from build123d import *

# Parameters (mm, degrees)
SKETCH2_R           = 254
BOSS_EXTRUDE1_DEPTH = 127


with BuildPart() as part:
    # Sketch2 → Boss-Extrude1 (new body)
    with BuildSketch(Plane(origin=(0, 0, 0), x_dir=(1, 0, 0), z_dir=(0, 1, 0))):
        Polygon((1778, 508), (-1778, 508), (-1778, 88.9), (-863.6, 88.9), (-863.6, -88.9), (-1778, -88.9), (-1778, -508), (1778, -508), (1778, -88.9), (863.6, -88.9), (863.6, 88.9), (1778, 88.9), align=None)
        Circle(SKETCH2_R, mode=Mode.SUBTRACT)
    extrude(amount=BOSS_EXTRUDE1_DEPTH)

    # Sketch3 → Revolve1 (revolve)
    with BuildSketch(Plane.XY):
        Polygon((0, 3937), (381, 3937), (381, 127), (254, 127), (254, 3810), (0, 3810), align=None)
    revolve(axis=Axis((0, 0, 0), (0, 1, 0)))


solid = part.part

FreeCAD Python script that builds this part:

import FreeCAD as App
import Part
import Sketcher
from FreeCAD import Vector
Q = App.Units.Quantity


def add_polygon(sketch, points):
    """Adds a closed chain of lines whose ends are joined by coincident constraints."""
    first, n = sketch.GeometryCount, len(points)
    for a, b in zip(points, points[1:] + points[:1]):
        sketch.addGeometry(Part.LineSegment(App.Vector(*a, 0), App.Vector(*b, 0)), False)
    for i in range(n):
        sketch.addConstraint(Sketcher.Constraint("Coincident", first + i, 2, first + (i + 1) % n, 1))

doc = App.newDocument("Part")
body = doc.addObject("PartDesign::Body", "Body")

# Sketch on XZ plane
sketch1 = body.newObject("Sketcher::SketchObject", "Sketch")
sketch1.AttachmentSupport = (doc.getObject("XZ_Plane"), [""])
sketch1.MapMode = "FlatFace"
add_polygon(sketch1, [(1778, -508), (-1778, -508), (-1778, -88.9), (-863.6, -88.9), (-863.6, 88.9), (-1778, 88.9), (-1778, 508), (1778, 508), (1778, 88.9), (863.6, 88.9), (863.6, -88.9), (1778, -88.9)])  # lines 0-11
sketch1.addGeometry(Part.Circle(Vector(0, 0, 0), Vector(0, 0, 1), 254), False)  # 12
sketch1.addConstraint(Sketcher.Constraint("Horizontal", 0))
sketch1.addConstraint(Sketcher.Constraint("Vertical", 1))
sketch1.addConstraint(Sketcher.Constraint("Horizontal", 2))
sketch1.addConstraint(Sketcher.Constraint("Vertical", 3))
sketch1.addConstraint(Sketcher.Constraint("Horizontal", 4))
sketch1.addConstraint(Sketcher.Constraint("Vertical", 5))
sketch1.addConstraint(Sketcher.Constraint("Horizontal", 6))
sketch1.addConstraint(Sketcher.Constraint("Vertical", 7))
sketch1.addConstraint(Sketcher.Constraint("Horizontal", 8))
sketch1.addConstraint(Sketcher.Constraint("Vertical", 9))
sketch1.addConstraint(Sketcher.Constraint("Horizontal", 10))
sketch1.addConstraint(Sketcher.Constraint("Vertical", 11))
sketch1.addConstraint(Sketcher.Constraint("Coincident", 12, 3, -1, 1))
sketch1.addConstraint(Sketcher.Constraint("Symmetric", 0, 2, 6, 2, -1, 1))
sketch1.addConstraint(Sketcher.Constraint("Symmetric", 2, 2, 8, 2, -1, 1))
sketch1.addConstraint(Sketcher.Constraint("Symmetric", 4, 2, 10, 2, -1, 1))
sketch1.addConstraint(Sketcher.Constraint("Symmetric", 4, 2, 7, 2, -2))
sketch1.addConstraint(Sketcher.Constraint("Diameter", 12, Q("20 in")))
sketch1.addConstraint(Sketcher.Constraint("DistanceX", 0, 2, 0, 1, Q("140 in")))
sketch1.addConstraint(Sketcher.Constraint("DistanceX", 2, 1, 2, 2, Q("36 in")))
sketch1.addConstraint(Sketcher.Constraint("DistanceY", 3, 1, 3, 2, Q("7 in")))
sketch1.addConstraint(Sketcher.Constraint("DistanceY", 1, 1, 1, 2, Q("16.5 in")))
pad1 = body.newObject("PartDesign::Pad", "Pad")
pad1.Profile = sketch1
pad1.Length = Q("5 in")
pad1.Reversed = True

# Sketch on XY plane
sketch2 = body.newObject("Sketcher::SketchObject", "Sketch001")
sketch2.AttachmentSupport = (doc.getObject("XY_Plane"), [""])
sketch2.MapMode = "FlatFace"
add_polygon(sketch2, [(381, 3937), (0, 3937), (0, 3810), (254, 3810), (254, 127), (381, 127)])  # lines 0-5
sketch2.addConstraint(Sketcher.Constraint("Horizontal", 0))
sketch2.addConstraint(Sketcher.Constraint("Vertical", 1))
sketch2.addConstraint(Sketcher.Constraint("Horizontal", 2))
sketch2.addConstraint(Sketcher.Constraint("Vertical", 3))
sketch2.addConstraint(Sketcher.Constraint("Horizontal", 4))
sketch2.addConstraint(Sketcher.Constraint("Vertical", 5))
sketch2.addConstraint(Sketcher.Constraint("PointOnObject", 0, 2, -2))
sketch2.addConstraint(Sketcher.Constraint("Equal", 4, 1))
sketch2.addConstraint(Sketcher.Constraint("DistanceX", 0, 2, 0, 1, Q("15 in")))
sketch2.addConstraint(Sketcher.Constraint("DistanceX", 2, 1, 2, 2, Q("10 in")))
sketch2.addConstraint(Sketcher.Constraint("DistanceY", 3, 2, 3, 1, Q("145 in")))
sketch2.addConstraint(Sketcher.Constraint("DistanceY", -1, 1, 0, 2, Q("155 in")))
revolution = body.newObject("PartDesign::Revolution", "Revolution")
revolution.Profile = sketch2
revolution.ReferenceAxis = (sketch2, ["V_Axis"])
revolution.Angle = 360

doc.recompute()
